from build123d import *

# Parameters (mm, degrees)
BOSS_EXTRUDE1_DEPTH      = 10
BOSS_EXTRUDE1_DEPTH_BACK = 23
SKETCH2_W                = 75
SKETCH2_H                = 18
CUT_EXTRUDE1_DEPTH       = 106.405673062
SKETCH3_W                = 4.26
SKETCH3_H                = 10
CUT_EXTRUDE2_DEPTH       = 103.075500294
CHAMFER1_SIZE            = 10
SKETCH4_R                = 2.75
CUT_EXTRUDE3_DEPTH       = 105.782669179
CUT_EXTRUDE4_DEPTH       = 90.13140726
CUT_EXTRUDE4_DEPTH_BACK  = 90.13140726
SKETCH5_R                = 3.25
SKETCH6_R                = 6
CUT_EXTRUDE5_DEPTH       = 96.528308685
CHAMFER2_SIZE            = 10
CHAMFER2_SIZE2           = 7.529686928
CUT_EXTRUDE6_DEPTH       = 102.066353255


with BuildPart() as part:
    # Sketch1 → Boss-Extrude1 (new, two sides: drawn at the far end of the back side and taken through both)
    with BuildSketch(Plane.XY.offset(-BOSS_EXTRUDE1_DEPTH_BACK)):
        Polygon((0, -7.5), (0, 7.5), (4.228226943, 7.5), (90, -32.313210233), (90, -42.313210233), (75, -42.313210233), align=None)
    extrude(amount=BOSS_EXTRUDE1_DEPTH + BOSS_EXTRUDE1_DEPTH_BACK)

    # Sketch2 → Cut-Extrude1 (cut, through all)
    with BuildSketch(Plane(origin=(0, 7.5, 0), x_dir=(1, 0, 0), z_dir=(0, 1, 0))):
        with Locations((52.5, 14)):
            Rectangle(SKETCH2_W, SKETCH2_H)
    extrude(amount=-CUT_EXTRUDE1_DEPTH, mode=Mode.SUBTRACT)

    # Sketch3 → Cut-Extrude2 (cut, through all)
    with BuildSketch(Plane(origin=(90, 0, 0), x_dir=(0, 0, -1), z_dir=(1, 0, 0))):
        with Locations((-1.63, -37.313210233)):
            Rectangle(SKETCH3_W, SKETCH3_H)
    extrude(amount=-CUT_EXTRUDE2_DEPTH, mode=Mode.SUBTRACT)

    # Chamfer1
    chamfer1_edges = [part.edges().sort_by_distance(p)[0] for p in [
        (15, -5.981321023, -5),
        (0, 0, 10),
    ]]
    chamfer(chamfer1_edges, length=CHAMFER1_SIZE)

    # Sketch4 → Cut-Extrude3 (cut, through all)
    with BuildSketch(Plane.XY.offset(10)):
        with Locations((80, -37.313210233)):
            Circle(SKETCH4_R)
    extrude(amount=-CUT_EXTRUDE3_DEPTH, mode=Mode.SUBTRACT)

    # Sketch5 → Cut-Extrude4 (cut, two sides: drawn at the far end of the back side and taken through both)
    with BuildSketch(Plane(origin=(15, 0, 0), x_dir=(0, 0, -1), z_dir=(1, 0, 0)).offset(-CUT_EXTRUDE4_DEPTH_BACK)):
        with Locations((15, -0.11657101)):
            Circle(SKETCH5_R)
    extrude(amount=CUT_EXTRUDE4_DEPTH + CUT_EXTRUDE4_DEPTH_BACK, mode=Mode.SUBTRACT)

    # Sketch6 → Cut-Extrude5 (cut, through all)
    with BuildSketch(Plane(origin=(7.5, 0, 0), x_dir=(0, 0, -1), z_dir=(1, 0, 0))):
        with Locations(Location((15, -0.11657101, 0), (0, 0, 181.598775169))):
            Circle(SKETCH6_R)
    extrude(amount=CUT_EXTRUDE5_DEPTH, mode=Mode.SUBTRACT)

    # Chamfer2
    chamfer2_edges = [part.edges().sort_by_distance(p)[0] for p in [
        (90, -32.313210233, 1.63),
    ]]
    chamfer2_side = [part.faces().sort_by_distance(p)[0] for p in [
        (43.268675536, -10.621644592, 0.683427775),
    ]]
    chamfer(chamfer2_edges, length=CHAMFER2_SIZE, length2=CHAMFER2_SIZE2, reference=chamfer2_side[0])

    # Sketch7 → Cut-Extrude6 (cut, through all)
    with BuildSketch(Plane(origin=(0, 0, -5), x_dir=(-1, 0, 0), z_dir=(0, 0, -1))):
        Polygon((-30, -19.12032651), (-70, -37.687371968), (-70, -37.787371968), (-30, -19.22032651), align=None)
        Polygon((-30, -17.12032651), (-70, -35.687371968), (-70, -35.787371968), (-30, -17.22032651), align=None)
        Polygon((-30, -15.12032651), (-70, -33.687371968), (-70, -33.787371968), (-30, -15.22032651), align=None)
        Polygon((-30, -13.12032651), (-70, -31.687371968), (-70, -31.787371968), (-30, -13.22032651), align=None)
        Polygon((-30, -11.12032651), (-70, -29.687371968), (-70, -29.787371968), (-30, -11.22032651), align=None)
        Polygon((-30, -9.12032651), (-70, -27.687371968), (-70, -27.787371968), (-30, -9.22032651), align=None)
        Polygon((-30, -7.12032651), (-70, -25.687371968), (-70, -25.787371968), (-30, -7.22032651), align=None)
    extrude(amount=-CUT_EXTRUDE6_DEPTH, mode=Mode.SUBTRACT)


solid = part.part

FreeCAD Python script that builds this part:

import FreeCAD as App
import Part
import Sketcher

V = App.Vector


def edges_at(feature, points):
    """Names of the edges that pass closest to the given points."""
    edges = feature.Shape.Edges
    near = lambda p: min(range(len(edges)), key=lambda i: edges[i].distToShape(Part.Vertex(*p))[0])
    return sorted({f"Edge{near(p) + 1}" for p in points})


def add_polygon(sketch, points):
    """Adds a closed chain of lines whose ends are joined by coincident constraints."""
    first, n = sketch.GeometryCount, len(points)
    for a, b in zip(points, points[1:] + points[:1]):
        sketch.addGeometry(Part.LineSegment(App.Vector(*a, 0), App.Vector(*b, 0)), False)
    for i in range(n):
        sketch.addConstraint(Sketcher.Constraint("Coincident", first + i, 2, first + (i + 1) % n, 1))

doc = App.newDocument("Part")
params = doc.addObject("Spreadsheet::Sheet", "Params")
for row, (alias, value) in enumerate([
    ("sketch1_width", "15 mm"),
    ("sketch1_height", "10 mm"),
    ("pad1_length", "10 mm"),
    ("pad1_length2", "23 mm"),
    ("sketch2_width", "75 mm"),
    ("sketch2_height", "18 mm"),
    ("sketch3_width", "10 mm"),
    ("sketch3_height", "4.26 mm"),
    ("chamfer_size", "10 mm"),
    ("sketch4_diameter", "5.5 mm"),
    ("sketch5_diameter", "6.5 mm"),
    ("sketch6_diameter", "12 mm"),
    ("chamfer2_size", "10 mm"),
    ("chamfer2_size2", "7.529687 mm"),
    ("sketch7_height", "0.1 mm"),
], start=1):
    params.set(f"A{row}", alias)
    params.set(f"B{row}", "=" + value)
    params.setAlias(f"B{row}", alias)

body = doc.addObject("PartDesign::Body", "Body")

# Sketch on XY plane
sketch1 = doc.addObject("Sketcher::SketchObject", "Sketch")
body.addObject(sketch1)
sketch1.AttachmentSupport = (doc.XY_Plane, [""])
sketch1.MapMode = "FlatFace"
add_polygon(sketch1, [(0, 7.5), (0, -7.5), (75, -42.3), (90, -42.3), (90, -32.3), (4.2, 7.5)])  # lines 0-5
sketch1.addConstraint([
    Sketcher.Constraint("Vertical", 0),
    Sketcher.Constraint("Horizontal", 2),
    Sketcher.Constraint("Vertical", 3),
    Sketcher.Constraint("Horizontal", 5),
    Sketcher.Constraint("Symmetric", 0, 2, 5, 2, -1, 1),
    Sketcher.Constraint("Parallel", 1, 4),
    Sketcher.Constraint("Equal", 2, 0),
    Sketcher.Constraint("DistanceX", 2, 1, 2, 2, 15.0),
    Sketcher.Constraint("DistanceY", 3, 1, 3, 2, 10.0),
    Sketcher.Constraint("DistanceX", -1, 1, 1, 2, 75.0),
    Sketcher.Constraint("Distance", 1, 82.685909),
])
sketch1.setExpression("Constraints[13]", "Params.sketch1_width")
sketch1.setExpression("Constraints[14]", "Params.sketch1_height")
pad1 = doc.addObject("PartDesign::Pad", "Pad")
body.addObject(pad1)
pad1.Profile = sketch1
pad1.Type = "TwoLengths"
pad1.setExpression("Length", "Params.pad1_length")
pad1.setExpression("Length2", "Params.pad1_length2")

# Sketch on XZ plane
sketch2 = doc.addObject("Sketcher::SketchObject", "Sketch001")
body.addObject(sketch2)
sketch2.AttachmentSupport = (doc.XZ_Plane, [""])
sketch2.MapMode = "FlatFace"
sketch2.AttachmentOffset = App.Placement(V(0, 0, -7.5), App.Rotation())
add_polygon(sketch2, [(15, -23), (15, -5), (90, -5), (90, -23)])  # lines 0-3
sketch2.addConstraint([
    Sketcher.Constraint("Vertical", 0),
    Sketcher.Constraint("Horizontal", 1),
    Sketcher.Constraint("Vertical", 2),
    Sketcher.Constraint("Horizontal", 3),
    Sketcher.Constraint("DistanceX", 1, 1, 1, 2, 75.0),
    Sketcher.Constraint("DistanceY", 0, 1, 0, 2, 18.0),
    Sketcher.Constraint("DistanceX", -1, 1, 0, 2, 15.0),
    Sketcher.Constraint("DistanceY", 0, 2, -1, 1, 5.0),
])
sketch2.setExpression("Constraints[8]", "Params.sketch2_width")
sketch2.setExpression("Constraints[9]", "Params.sketch2_height")
pocket1 = doc.addObject("PartDesign::Pocket", "Pocket")
body.addObject(pocket1)
pocket1.Profile = sketch2
pocket1.Type = "ThroughAll"
pocket1.Reversed = True

# Sketch on YZ plane
sketch3 = doc.addObject("Sketcher::SketchObject", "Sketch002")
body.addObject(sketch3)
sketch3.AttachmentSupport = (doc.YZ_Plane, [""])
sketch3.MapMode = "FlatFace"
sketch3.AttachmentOffset = App.Placement(V(0, 0, 90), App.Rotation())
add_polygon(sketch3, [(-32.3, 3.8), (-42.3, 3.8), (-42.3, -0.5), (-32.3, -0.5)])  # lines 0-3
sketch3.addConstraint([
    Sketcher.Constraint("Horizontal", 0),
    Sketcher.Constraint("Vertical", 1),
    Sketcher.Constraint("Horizontal", 2),
    Sketcher.Constraint("Vertical", 3),
    Sketcher.Constraint("DistanceX", 0, 2, 0, 1, 10.0),
    Sketcher.Constraint("DistanceY", 1, 2, 1, 1, 4.26),
    Sketcher.Constraint("DistanceY", 1, 2, -1, 1, 0.5),
    Sketcher.Constraint("DistanceX", 0, 2, -1, 1, 42.31321),
])
sketch3.setExpression("Constraints[8]", "Params.sketch3_width")
sketch3.setExpression("Constraints[9]", "Params.sketch3_height")
pocket2 = doc.addObject("PartDesign::Pocket", "Pocket001")
body.addObject(pocket2)
pocket2.Profile = sketch3
pocket2.Type = "ThroughAll"
doc.recompute()

chamfer = doc.addObject("PartDesign::Chamfer", "Chamfer")
body.addObject(chamfer)
chamfer.Base = (pocket2, edges_at(pocket2, [(15, -5.981, -5), (0, 0, 10)]))
chamfer.setExpression("Size", "Params.chamfer_size")

# Sketch on XY plane
sketch4 = doc.addObject("Sketcher::SketchObject", "Sketch003")
body.addObject(sketch4)
sketch4.AttachmentSupport = (doc.XY_Plane, [""])
sketch4.MapMode = "FlatFace"
sketch4.AttachmentOffset = App.Placement(V(0, 0, 10), App.Rotation())
sketch4.addGeometry(Part.Circle(V(80, -37.3, 0), V(0, 0, 1), 2.8), False)
sketch4.addConstraint([
    Sketcher.Constraint("Diameter", 0, 5.5),
    Sketcher.Constraint("DistanceX", -1, 1, 0, 3, 80.0),
    Sketcher.Constraint("DistanceY", 0, 3, -1, 1, 37.31321),
])
sketch4.setExpression("Constraints[0]", "Params.sketch4_diameter")
pocket3 = doc.addObject("PartDesign::Pocket", "Pocket002")
body.addObject(pocket3)
pocket3.Profile = sketch4
pocket3.Type = "ThroughAll"

# Sketch on YZ plane
sketch5 = doc.addObject("Sketcher::SketchObject", "Sketch004")
body.addObject(sketch5)
sketch5.AttachmentSupport = (doc.YZ_Plane, [""])
sketch5.MapMode = "FlatFace"
sketch5.AttachmentOffset = App.Placement(V(0, 0, 15), App.Rotation())
sketch5.addGeometry(Part.Circle(V(-0.1, -15, 0), V(0, 0, 1), 3.2), False)
sketch5.addConstraint([
    Sketcher.Constraint("Diameter", 0, 6.5),
    Sketcher.Constraint("DistanceY", 0, 3, -1, 1, 15.0),
    Sketcher.Constraint("DistanceX", 0, 3, -1, 1, 0.116571),
])
sketch5.setExpression("Constraints[0]", "Params.sketch5_diameter")
pocket4 = doc.addObject("PartDesign::Pocket", "Pocket003")
body.addObject(pocket4)
pocket4.Profile = sketch5
pocket4.Type = "ThroughAll"
pocket4.Midplane = True

# Sketch on YZ plane
sketch6 = doc.addObject("Sketcher::SketchObject", "Sketch005")
body.addObject(sketch6)
sketch6.AttachmentSupport = (doc.YZ_Plane, [""])
sketch6.MapMode = "FlatFace"
sketch6.AttachmentOffset = App.Placement(V(0, 0, 7.5), App.Rotation())
sketch6.addGeometry(Part.Circle(V(0, -15, 0), V(0, 0, 1), 6), False)
sketch6.addConstraint([
    Sketcher.Constraint("Diameter", 0, 12.0),
    Sketcher.Constraint("DistanceY", 0, 3, -1, 1, 15.0),
    Sketcher.Constraint("DistanceX", 0, 3, -1, 1, 0.116571),
])
sketch6.setExpression("Constraints[0]", "Params.sketch6_diameter")
pocket5 = doc.addObject("PartDesign::Pocket", "Pocket004")
body.addObject(pocket5)
pocket5.Profile = sketch6
pocket5.Type = "ThroughAll"
pocket5.Reversed = True
doc.recompute()

chamfer2 = doc.addObject("PartDesign::Chamfer", "Chamfer001")
body.addObject(chamfer2)
chamfer2.Base = (pocket5, edges_at(pocket5, [(90, -32.313, 1.63)]))
chamfer2.ChamferType = "Two distances"
chamfer2.setExpression("Size", "Params.chamfer2_size")
chamfer2.setExpression("Size2", "Params.chamfer2_size2")

# Sketch on XY plane
sketch7 = doc.addObject("Sketcher::SketchObject", "Sketch006")
body.addObject(sketch7)
sketch7.AttachmentSupport = (doc.XY_Plane, [""])
sketch7.MapMode = "FlatFace"
sketch7.AttachmentOffset = App.Placement(V(0, 0, -5), App.Rotation())
add_polygon(sketch7, [(30, -19.12), (70, -37.69), (70, -37.79), (30, -19.22)])  # lines 0-3
add_polygon(sketch7, [(30, -17.12), (70, -35.69), (70, -35.79), (30, -17.22)])  # lines 4-7
add_polygon(sketch7, [(30, -15.12), (70, -33.69), (70, -33.79), (30, -15.22)])  # lines 8-11
add_polygon(sketch7, [(30, -13.12), (70, -31.69), (70, -31.79), (30, -13.22)])  # lines 12-15
add_polygon(sketch7, [(30, -11.12), (70, -29.69), (70, -29.79), (30, -11.22)])  # lines 16-19
add_polygon(sketch7, [(30, -9.12), (70, -27.69), (70, -27.79), (30, -9.22)])  # lines 20-23
add_polygon(sketch7, [(30, -7.12), (70, -25.69), (70, -25.79), (30, -7.22)])  # lines 24-27
sketch7.addConstraint([
    Sketcher.Constraint("Vertical", 1),
    Sketcher.Constraint("Vertical", 3),
    Sketcher.Constraint("Vertical", 5),
    Sketcher.Constraint("Vertical", 7),
    Sketcher.Constraint("Vertical", 9),
    Sketcher.Constraint("Vertical", 11),
    Sketcher.Constraint("Vertical", 13),
    Sketcher.Constraint("Vertical", 15),
    Sketcher.Constraint("Vertical", 17),
    Sketcher.Constraint("Vertical", 19),
    Sketcher.Constraint("Vertical", 21),
    Sketcher.Constraint("Vertical", 23),
    Sketcher.Constraint("Vertical", 25),
    Sketcher.Constraint("Vertical", 27),
    Sketcher.Constraint("Parallel", 0, 2),
    Sketcher.Constraint("Parallel", 2, 4),
    Sketcher.Constraint("Parallel", 4, 6),
    Sketcher.Constraint("Parallel", 6, 8),
    Sketcher.Constraint("Parallel", 8, 10),
    Sketcher.Constraint("Parallel", 10, 12),
    Sketcher.Constraint("Parallel", 12, 14),
    Sketcher.Constraint("Parallel", 14, 16),
    Sketcher.Constraint("Parallel", 16, 18),
    Sketcher.Constraint("Parallel", 18, 20),
    Sketcher.Constraint("Parallel", 20, 22),
    Sketcher.Constraint("Parallel", 22, 24),
    Sketcher.Constraint("Parallel", 24, 26),
    Sketcher.Constraint("Vertical", 1, 2, 4, 2),
    Sketcher.Constraint("Vertical", 3, 2, 6, 2),
    Sketcher.Constraint("Vertical", 5, 2, 8, 2),
    Sketcher.Constraint("Vertical", 7, 2, 10, 2),
    Sketcher.Constraint("Vertical", 9, 2, 12, 2),
    Sketcher.Constraint("Vertical", 11, 2, 14, 2),
    Sketcher.Constraint("Vertical", 13, 2, 16, 2),
    Sketcher.Constraint("Vertical", 15, 2, 18, 2),
    Sketcher.Constraint("Vertical", 17, 2, 20, 2),
    Sketcher.Constraint("Vertical", 19, 2, 22, 2),
    Sketcher.Constraint("Vertical", 21, 2, 24, 2),
    Sketcher.Constraint("Vertical", 23, 2, 26, 2),
    Sketcher.Constraint("Equal", 3, 5),
    Sketcher.Constraint("Equal", 7, 9),
    Sketcher.Constraint("Equal", 11, 13),
    Sketcher.Constraint("Equal", 15, 17),
    Sketcher.Constraint("Equal", 19, 21),
    Sketcher.Constraint("Equal", 23, 25),
    Sketcher.Constraint("DistanceY", 1, 2, 1, 1, 0.1),
    Sketcher.Constraint("DistanceX", -1, 1, 0, 2, 70.0),
    Sketcher.Constraint("DistanceX", -1, 1, 2, 2, 30.0),
    Sketcher.Constraint("DistanceY", 0, 2, 4, 2, 2.0),
    Sketcher.Constraint("DistanceY", 4, 2, 8, 2, 2.0),
    Sketcher.Constraint("DistanceY", 8, 2, 12, 2, 2.0),
    Sketcher.Constraint("DistanceY", 12, 2, 16, 2, 2.0),
    Sketcher.Constraint("DistanceY", 16, 2, 20, 2, 2.0),
    Sketcher.Constraint("DistanceY", 20, 2, 24, 2, 2.0),
    Sketcher.Constraint("Distance", 0, 44.099152),
    Sketcher.Constraint("DistanceY", 0, 2, -1, 1, 37.687372),
])
sketch7.setExpression("Constraints[73]", "Params.sketch7_height")
pocket6 = doc.addObject("PartDesign::Pocket", "Pocket005")
body.addObject(pocket6)
pocket6.Profile = sketch7
pocket6.Type = "ThroughAll"
pocket6.Reversed = True

doc.recompute()
